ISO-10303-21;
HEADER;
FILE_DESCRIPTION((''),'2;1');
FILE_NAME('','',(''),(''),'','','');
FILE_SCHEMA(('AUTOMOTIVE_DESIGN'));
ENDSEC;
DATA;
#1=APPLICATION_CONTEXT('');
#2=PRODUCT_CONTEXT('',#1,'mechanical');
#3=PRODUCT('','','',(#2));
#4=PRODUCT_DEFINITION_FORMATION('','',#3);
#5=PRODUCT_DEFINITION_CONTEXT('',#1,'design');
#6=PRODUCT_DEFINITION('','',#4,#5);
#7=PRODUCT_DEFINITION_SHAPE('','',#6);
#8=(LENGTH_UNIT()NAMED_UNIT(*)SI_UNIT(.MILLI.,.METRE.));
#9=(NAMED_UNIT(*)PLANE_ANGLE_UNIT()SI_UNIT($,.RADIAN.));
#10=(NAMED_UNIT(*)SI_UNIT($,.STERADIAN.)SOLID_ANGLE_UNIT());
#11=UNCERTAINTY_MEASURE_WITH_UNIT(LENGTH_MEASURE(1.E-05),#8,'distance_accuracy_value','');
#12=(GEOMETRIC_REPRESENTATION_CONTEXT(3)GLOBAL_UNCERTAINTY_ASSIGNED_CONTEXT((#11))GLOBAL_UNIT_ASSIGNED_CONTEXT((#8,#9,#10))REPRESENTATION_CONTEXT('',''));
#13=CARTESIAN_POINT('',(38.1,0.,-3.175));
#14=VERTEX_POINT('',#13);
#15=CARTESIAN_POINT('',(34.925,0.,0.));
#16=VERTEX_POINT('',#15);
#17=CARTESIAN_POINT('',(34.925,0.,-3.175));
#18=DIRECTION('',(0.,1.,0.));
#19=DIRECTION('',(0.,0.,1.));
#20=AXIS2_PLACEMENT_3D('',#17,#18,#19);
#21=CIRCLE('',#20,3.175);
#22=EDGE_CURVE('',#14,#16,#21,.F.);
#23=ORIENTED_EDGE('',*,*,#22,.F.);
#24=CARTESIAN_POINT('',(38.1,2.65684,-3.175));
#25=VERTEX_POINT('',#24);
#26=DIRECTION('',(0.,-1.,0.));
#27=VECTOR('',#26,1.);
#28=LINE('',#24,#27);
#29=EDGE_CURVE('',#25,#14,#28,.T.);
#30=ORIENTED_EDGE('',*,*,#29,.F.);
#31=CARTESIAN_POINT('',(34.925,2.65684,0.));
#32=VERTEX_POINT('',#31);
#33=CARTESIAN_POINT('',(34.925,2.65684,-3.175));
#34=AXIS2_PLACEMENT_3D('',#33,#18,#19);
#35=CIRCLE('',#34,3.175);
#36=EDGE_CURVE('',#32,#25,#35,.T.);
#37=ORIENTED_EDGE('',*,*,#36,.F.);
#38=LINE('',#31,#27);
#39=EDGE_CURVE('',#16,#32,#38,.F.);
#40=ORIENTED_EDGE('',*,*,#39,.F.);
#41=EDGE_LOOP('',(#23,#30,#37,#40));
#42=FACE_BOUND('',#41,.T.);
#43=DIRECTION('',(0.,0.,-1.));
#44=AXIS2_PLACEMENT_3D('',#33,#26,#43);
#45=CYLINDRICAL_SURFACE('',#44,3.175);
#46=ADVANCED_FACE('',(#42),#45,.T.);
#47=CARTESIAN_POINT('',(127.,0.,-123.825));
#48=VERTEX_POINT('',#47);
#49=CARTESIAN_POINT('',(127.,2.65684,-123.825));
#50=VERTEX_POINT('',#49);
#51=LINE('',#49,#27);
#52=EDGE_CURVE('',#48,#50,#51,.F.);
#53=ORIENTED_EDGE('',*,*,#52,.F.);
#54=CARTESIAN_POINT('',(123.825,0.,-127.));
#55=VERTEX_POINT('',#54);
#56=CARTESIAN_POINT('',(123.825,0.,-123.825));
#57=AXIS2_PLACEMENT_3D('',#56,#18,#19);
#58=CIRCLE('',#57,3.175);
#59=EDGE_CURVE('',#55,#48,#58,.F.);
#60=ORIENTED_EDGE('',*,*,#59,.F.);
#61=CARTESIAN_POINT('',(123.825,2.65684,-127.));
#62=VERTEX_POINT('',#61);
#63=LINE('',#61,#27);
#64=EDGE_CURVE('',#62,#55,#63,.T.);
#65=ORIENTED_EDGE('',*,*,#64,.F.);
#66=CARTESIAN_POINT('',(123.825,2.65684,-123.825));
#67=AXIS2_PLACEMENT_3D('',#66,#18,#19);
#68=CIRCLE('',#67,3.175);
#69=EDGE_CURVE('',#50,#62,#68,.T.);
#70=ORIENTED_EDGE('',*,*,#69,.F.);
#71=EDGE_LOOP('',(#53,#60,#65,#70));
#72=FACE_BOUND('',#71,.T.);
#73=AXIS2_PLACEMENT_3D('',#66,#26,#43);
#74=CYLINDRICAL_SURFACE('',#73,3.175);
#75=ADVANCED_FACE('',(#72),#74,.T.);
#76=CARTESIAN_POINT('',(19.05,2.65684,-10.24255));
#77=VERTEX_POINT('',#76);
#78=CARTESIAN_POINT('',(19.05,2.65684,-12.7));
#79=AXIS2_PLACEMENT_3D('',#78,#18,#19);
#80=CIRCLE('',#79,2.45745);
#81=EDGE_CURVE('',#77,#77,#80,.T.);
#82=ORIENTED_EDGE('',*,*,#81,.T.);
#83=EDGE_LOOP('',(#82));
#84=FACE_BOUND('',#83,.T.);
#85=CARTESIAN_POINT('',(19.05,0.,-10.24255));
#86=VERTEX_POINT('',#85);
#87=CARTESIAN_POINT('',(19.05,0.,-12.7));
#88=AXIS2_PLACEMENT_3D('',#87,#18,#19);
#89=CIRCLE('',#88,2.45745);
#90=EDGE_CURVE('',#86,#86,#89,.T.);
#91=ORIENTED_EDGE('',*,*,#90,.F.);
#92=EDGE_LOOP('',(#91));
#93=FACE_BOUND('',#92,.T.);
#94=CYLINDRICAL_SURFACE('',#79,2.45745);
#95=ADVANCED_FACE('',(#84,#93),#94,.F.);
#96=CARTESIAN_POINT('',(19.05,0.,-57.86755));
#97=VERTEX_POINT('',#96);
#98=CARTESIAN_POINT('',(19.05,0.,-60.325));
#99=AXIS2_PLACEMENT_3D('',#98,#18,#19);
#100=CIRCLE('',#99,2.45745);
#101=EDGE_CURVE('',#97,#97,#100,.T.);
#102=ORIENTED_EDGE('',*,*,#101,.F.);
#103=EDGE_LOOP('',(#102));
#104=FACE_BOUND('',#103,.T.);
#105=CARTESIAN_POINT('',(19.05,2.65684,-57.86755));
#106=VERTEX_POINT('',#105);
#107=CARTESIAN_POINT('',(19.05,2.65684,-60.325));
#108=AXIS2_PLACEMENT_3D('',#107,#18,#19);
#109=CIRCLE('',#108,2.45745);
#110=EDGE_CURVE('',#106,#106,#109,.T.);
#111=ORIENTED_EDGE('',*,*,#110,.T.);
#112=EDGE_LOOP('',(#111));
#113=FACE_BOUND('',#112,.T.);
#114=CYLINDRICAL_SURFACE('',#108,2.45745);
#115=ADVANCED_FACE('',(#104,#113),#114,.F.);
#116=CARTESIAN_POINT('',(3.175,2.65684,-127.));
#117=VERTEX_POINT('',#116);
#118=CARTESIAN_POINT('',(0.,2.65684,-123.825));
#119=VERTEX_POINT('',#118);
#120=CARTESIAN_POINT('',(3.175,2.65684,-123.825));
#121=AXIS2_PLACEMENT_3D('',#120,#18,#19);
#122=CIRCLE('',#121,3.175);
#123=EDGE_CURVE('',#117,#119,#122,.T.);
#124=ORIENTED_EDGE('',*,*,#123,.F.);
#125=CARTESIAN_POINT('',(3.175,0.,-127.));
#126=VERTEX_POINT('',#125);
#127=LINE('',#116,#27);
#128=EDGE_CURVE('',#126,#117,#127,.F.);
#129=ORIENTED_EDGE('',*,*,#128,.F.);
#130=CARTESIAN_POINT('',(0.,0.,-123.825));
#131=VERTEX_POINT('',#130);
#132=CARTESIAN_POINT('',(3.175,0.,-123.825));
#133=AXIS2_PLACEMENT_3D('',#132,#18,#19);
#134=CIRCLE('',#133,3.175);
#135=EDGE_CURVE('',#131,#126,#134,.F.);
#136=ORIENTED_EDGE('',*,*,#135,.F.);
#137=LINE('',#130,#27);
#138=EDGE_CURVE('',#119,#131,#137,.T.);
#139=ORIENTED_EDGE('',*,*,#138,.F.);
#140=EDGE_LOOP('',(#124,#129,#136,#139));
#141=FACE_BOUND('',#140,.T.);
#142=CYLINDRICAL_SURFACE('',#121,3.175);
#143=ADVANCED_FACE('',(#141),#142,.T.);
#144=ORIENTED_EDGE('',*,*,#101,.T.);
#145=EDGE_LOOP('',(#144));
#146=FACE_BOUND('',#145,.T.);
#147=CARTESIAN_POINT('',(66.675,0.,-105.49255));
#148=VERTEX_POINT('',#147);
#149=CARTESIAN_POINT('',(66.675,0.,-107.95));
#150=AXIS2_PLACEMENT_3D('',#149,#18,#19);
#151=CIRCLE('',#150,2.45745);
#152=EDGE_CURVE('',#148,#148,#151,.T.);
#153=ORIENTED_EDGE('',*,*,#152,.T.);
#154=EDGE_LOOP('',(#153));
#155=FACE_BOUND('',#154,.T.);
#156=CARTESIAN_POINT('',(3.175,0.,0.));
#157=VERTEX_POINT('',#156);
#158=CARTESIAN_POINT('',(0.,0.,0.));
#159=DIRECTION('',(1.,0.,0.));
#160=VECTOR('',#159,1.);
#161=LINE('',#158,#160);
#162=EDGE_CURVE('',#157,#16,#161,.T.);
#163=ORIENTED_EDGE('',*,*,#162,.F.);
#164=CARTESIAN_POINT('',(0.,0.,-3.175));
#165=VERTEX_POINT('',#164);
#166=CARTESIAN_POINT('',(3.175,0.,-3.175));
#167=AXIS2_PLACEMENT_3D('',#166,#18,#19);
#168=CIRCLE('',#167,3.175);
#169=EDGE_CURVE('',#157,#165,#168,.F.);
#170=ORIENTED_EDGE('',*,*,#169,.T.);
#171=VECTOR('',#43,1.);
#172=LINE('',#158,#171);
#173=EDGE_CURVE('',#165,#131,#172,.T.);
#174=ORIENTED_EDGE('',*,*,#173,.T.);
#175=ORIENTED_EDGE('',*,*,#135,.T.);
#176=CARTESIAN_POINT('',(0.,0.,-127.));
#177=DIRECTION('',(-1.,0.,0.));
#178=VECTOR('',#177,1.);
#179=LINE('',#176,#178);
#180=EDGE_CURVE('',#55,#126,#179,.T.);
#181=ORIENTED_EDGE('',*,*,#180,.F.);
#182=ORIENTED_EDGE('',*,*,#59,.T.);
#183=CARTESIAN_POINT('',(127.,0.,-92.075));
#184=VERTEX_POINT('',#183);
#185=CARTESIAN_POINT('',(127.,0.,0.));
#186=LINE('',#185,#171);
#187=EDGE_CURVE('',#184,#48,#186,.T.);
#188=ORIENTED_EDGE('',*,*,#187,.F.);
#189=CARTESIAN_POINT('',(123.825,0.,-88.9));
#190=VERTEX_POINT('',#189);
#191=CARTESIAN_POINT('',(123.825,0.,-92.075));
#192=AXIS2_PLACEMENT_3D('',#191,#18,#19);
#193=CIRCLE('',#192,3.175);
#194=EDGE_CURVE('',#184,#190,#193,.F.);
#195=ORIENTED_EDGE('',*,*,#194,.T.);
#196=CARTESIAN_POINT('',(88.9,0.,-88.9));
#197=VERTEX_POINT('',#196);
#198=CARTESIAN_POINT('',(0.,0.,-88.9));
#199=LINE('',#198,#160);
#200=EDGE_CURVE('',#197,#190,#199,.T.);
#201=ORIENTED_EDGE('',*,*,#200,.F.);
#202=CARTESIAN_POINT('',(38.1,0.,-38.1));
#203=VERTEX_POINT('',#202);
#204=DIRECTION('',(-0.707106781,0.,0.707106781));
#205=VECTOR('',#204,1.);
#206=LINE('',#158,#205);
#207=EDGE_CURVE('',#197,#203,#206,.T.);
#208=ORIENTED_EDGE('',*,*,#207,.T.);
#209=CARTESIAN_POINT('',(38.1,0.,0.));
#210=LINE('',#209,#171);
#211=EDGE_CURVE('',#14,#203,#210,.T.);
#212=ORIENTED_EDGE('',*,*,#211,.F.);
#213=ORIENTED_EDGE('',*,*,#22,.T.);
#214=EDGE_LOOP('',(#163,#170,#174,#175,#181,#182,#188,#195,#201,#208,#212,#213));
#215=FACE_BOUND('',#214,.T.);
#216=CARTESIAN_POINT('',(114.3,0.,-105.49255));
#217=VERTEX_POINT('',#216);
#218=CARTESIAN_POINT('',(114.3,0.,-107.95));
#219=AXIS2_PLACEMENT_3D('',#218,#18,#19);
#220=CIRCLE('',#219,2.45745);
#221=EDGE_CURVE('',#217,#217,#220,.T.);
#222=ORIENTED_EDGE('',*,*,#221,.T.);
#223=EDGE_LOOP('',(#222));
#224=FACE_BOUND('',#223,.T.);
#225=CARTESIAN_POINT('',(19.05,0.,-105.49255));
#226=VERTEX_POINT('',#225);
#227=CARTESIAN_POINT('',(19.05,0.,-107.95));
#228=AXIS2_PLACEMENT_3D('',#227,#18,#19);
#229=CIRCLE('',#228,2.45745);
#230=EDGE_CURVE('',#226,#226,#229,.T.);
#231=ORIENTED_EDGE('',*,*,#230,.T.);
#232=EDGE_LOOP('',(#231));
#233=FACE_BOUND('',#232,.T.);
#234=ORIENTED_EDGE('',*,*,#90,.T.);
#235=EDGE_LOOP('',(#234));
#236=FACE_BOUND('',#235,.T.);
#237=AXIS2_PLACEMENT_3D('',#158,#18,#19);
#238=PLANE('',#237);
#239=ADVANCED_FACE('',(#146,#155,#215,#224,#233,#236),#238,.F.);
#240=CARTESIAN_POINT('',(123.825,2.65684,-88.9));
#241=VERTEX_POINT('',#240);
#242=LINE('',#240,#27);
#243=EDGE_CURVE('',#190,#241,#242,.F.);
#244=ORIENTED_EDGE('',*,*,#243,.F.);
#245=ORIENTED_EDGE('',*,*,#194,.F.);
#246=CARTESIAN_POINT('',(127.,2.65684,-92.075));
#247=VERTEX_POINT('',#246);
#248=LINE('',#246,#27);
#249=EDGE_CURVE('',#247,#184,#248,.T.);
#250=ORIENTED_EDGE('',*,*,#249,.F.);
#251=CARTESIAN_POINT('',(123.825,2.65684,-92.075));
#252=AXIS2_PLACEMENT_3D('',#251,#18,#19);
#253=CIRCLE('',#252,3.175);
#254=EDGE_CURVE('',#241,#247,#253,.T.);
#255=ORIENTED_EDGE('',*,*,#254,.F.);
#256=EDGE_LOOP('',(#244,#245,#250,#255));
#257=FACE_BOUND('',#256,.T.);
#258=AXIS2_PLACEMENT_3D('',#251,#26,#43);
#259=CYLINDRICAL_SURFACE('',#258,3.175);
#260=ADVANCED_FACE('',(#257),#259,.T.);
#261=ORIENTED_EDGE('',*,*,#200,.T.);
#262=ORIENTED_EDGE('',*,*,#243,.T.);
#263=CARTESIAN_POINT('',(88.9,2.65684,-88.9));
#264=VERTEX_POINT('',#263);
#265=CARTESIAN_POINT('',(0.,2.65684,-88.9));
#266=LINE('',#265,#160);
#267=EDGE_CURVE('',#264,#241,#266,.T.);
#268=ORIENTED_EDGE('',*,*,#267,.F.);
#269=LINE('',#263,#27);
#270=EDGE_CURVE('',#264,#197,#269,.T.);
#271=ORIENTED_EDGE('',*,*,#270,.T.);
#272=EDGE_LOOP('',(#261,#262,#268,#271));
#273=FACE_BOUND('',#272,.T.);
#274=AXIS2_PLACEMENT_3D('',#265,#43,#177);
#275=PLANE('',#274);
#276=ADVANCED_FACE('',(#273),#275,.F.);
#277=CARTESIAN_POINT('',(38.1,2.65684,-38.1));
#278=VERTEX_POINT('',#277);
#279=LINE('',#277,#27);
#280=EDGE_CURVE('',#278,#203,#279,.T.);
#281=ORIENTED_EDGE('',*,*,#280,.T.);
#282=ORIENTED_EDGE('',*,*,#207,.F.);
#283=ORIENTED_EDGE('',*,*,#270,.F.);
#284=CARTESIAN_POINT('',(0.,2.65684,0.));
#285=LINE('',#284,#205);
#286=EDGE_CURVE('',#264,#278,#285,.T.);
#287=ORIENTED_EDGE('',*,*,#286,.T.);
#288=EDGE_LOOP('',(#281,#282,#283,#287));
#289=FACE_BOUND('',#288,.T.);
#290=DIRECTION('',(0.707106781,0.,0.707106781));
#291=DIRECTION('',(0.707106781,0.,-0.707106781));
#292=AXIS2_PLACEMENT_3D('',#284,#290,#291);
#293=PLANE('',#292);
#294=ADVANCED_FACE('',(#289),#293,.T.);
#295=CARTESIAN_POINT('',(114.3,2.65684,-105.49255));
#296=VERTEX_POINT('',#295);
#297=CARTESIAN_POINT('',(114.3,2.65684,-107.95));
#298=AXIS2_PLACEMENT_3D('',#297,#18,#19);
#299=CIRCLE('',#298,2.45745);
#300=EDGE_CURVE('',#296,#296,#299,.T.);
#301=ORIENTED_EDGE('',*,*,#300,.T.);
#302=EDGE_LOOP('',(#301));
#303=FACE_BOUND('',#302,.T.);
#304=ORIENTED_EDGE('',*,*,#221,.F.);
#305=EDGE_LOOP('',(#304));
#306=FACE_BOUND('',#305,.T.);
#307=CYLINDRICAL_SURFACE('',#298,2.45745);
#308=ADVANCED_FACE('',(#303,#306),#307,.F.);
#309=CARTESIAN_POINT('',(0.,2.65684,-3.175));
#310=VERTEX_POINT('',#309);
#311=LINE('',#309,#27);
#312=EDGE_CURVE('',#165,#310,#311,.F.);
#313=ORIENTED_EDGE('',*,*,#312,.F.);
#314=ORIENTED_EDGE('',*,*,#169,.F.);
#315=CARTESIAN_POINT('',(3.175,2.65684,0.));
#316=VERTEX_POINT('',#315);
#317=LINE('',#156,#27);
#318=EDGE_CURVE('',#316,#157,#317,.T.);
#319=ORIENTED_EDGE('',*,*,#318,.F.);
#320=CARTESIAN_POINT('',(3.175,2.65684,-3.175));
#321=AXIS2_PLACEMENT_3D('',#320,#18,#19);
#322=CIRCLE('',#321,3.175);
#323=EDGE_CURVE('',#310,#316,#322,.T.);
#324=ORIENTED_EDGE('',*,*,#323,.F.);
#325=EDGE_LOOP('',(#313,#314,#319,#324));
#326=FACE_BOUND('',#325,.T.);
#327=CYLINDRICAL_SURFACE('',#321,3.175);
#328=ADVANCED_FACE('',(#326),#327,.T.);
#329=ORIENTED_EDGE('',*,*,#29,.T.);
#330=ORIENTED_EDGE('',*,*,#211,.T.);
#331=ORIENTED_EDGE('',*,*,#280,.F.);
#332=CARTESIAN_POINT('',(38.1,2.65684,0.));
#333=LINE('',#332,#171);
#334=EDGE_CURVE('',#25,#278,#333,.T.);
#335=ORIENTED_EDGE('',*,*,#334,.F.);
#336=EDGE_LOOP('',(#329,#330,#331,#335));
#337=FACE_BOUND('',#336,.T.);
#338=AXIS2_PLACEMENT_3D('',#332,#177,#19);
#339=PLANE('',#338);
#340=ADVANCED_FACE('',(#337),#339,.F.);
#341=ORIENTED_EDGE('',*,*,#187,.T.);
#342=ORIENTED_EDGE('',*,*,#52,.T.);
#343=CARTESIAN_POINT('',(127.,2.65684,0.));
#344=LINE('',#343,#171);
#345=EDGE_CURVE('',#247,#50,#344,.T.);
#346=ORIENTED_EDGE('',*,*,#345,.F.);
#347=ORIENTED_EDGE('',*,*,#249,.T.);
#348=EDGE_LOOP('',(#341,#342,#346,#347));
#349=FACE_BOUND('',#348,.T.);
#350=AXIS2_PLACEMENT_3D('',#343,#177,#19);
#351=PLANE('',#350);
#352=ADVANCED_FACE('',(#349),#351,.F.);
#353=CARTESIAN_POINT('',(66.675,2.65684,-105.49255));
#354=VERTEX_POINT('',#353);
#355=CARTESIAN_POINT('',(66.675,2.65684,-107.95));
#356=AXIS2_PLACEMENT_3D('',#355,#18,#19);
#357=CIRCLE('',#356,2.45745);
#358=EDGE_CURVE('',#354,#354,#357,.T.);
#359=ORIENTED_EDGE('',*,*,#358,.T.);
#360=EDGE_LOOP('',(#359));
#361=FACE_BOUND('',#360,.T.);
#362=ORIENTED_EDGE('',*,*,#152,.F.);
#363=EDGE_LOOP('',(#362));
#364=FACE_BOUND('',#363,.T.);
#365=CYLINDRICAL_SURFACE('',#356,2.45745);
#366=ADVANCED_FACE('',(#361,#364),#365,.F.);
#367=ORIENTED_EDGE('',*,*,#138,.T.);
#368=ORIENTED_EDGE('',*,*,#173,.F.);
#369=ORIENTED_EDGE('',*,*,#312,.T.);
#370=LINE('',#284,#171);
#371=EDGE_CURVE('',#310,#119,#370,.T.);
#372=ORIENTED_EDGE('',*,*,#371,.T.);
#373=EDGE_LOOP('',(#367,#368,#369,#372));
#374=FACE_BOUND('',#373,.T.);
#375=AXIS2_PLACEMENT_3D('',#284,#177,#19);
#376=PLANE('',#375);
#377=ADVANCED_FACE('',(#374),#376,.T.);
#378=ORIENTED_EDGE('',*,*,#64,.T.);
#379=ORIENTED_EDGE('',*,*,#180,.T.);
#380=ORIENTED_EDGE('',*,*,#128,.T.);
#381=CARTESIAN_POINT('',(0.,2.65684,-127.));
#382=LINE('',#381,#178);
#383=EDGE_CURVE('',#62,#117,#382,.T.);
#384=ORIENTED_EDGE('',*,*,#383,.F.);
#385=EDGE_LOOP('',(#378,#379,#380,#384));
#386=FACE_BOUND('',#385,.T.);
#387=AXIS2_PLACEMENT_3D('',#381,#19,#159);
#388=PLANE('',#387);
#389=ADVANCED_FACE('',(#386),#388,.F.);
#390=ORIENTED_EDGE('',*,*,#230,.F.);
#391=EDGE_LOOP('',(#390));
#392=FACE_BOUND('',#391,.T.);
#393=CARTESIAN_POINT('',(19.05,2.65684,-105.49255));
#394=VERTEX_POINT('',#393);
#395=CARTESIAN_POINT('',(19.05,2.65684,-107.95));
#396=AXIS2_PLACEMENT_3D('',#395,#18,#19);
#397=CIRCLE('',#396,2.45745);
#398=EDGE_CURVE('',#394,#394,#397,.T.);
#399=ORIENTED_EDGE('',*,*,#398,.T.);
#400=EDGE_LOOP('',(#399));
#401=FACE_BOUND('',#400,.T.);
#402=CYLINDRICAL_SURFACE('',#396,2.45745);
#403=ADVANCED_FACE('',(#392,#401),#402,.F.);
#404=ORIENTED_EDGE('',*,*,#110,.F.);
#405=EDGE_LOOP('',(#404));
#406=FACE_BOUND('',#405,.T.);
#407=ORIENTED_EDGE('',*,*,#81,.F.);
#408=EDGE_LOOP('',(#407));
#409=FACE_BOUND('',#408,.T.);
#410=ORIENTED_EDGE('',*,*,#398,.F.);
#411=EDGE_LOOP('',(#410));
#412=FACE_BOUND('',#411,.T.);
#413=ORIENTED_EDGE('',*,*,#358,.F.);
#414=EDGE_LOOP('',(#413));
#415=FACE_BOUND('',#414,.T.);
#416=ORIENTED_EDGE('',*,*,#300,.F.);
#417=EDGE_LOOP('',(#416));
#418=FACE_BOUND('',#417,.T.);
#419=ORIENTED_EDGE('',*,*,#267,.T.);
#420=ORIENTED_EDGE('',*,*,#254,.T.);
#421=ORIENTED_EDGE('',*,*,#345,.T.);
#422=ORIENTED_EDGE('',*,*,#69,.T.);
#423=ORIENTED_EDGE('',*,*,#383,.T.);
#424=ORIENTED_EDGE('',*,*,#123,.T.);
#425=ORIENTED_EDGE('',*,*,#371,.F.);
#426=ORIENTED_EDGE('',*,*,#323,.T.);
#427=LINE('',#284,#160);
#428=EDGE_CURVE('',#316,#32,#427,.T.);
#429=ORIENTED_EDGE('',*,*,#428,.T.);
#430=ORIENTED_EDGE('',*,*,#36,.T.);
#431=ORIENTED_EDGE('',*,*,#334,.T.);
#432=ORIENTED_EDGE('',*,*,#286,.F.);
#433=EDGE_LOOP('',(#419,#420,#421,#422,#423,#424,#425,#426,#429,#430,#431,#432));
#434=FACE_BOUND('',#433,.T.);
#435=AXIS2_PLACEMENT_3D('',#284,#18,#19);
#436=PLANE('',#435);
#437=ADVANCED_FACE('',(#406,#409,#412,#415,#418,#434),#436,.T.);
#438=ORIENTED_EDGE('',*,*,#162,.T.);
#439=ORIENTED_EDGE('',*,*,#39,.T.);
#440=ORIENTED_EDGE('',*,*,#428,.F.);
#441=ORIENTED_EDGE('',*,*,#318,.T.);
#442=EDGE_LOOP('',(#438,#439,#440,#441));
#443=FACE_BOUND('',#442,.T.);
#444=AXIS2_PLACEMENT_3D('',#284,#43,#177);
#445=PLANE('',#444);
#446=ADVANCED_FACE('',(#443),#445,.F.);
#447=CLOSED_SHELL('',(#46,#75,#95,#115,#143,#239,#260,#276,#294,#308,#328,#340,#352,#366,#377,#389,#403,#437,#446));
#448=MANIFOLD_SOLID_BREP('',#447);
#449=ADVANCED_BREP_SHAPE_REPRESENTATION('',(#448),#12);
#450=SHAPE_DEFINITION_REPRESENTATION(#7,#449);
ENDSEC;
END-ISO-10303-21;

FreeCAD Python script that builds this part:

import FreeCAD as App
import Part
import Sketcher
from FreeCAD import Vector
Q = App.Units.Quantity


def edges_at(feature, points):
    """Names of the edges that pass closest to the given points."""
    edges = feature.Shape.Edges
    near = lambda p: min(range(len(edges)), key=lambda i: edges[i].distToShape(Part.Vertex(*p))[0])
    return sorted({f"Edge{near(p) + 1}" for p in points})


def add_polygon(sketch, points):
    """Adds a closed chain of lines whose ends are joined by coincident constraints."""
    first, n = sketch.GeometryCount, len(points)
    for a, b in zip(points, points[1:] + points[:1]):
        sketch.addGeometry(Part.LineSegment(App.Vector(*a, 0), App.Vector(*b, 0)), False)
    for i in range(n):
        sketch.addConstraint(Sketcher.Constraint("Coincident", first + i, 2, first + (i + 1) % n, 1))

doc = App.newDocument("Part")
params = doc.addObject("Spreadsheet::Sheet", "Params")
for row, (alias, value) in enumerate([
    ("sketch1_width", "5 in"),
    ("sketch1_width2", "1.5 in"),
    ("pad1_length", "0.1046 in"),
    ("hole_diameter", "0.1935 in"),
    ("fillet_radius", "0.125 in"),
], start=1):
    params.set(f"A{row}", alias)
    params.set(f"B{row}", "=" + value)
    params.setAlias(f"B{row}", alias)

body = doc.addObject("PartDesign::Body", "Body")

sketch1 = body.newObject("Sketcher::SketchObject", "Sketch")
sketch1.AttachmentSupport = (doc.getObject("XZ_Plane"), [""])
sketch1.MapMode = "FlatFace"
add_polygon(sketch1, [(127, -89), (127, -127), (0, -127), (0, 0), (38, 0), (38, -38), (89, -89)])
sketch1.addConstraint(Sketcher.Constraint("Vertical", 0))
sketch1.addConstraint(Sketcher.Constraint("Horizontal", 1))
sketch1.addConstraint(Sketcher.Constraint("Vertical", 2))
sketch1.addConstraint(Sketcher.Constraint("Horizontal", 3))
sketch1.addConstraint(Sketcher.Constraint("Vertical", 4))
sketch1.addConstraint(Sketcher.Constraint("Horizontal", 6))
sketch1.addConstraint(Sketcher.Constraint("Coincident", 2, 2, -1, 1))
sketch1.addConstraint(Sketcher.Constraint("Equal", 3, 6))
sketch1.addConstraint(Sketcher.Constraint("Equal", 6, 0))
sketch1.addConstraint(Sketcher.Constraint("Equal", 1, 2))
sketch1.addConstraint(Sketcher.Constraint("Equal", 0, 4))
sketch1.addConstraint(Sketcher.Constraint("DistanceX", 1, 2, 1, 1, Q("5 in")))
sketch1.addConstraint(Sketcher.Constraint("DistanceX", 3, 1, 3, 2, Q("1.5 in")))
sketch1.setExpression("Constraints[18]", "Params.sketch1_width")
sketch1.setExpression("Constraints[19]", "Params.sketch1_width2")
pad1 = body.newObject("PartDesign::Pad", "Pad")
pad1.Profile = sketch1
pad1.setExpression("Length", "Params.pad1_length")
pad1.Reversed = True

sketch2 = body.newObject("Sketcher::SketchObject", "Sketch001")
sketch2.AttachmentSupport = (doc.getObject("XZ_Plane"), [""])
sketch2.MapMode = "FlatFace"
sketch2.AttachmentOffset = App.Placement(Vector(0, 0, -0.1046 * 25.4), App.Rotation())
sketch2.addGeometry(Part.Circle(Vector(114.3, -108, 0), Vector(0, 0, 1), 2.5), False)
sketch2.addGeometry(Part.Circle(Vector(66.7, -108, 0), Vector(0, 0, 1), 2.5), False)
sketch2.addGeometry(Part.Circle(Vector(19.1, -108, 0), Vector(0, 0, 1), 2.5), False)
sketch2.addGeometry(Part.Circle(Vector(19.1, -60.3, 0), Vector(0, 0, 1), 2.5), False)
sketch2.addGeometry(Part.Circle(Vector(19.1, -12.7, 0), Vector(0, 0, 1), 2.5), False)
sketch2.addConstraint(Sketcher.Constraint("Equal", 0, 1))
sketch2.addConstraint(Sketcher.Constraint("Equal", 1, 2))
sketch2.addConstraint(Sketcher.Constraint("Equal", 2, 3))
sketch2.addConstraint(Sketcher.Constraint("Equal", 3, 4))
sketch2.addConstraint(Sketcher.Constraint("Horizontal", 0, 3, 1, 3))
sketch2.addConstraint(Sketcher.Constraint("Horizontal", 1, 3, 2, 3))
sketch2.addConstraint(Sketcher.Constraint("Vertical", 2, 3, 3, 3))
sketch2.addConstraint(Sketcher.Constraint("Vertical", 3, 3, 4, 3))
sketch2.addConstraint(Sketcher.Constraint("Diameter", 0, Q("0.1935 in")))
sketch2.addConstraint(Sketcher.Constraint("DistanceX", -1, 1, 0, 3, Q("4.5 in")))
sketch2.addConstraint(Sketcher.Constraint("DistanceY", 4, 3, -1, 1, Q("0.5 in")))
sketch2.addConstraint(Sketcher.Constraint("DistanceY", 0, 3, -1, 1, Q("4.25 in")))
sketch2.addConstraint(Sketcher.Constraint("DistanceX", -1, 1, 2, 3, Q("0.75 in")))
sketch2.addConstraint(Sketcher.Constraint("DistanceX", -1, 1, 1, 3, Q("2.625 in")))
sketch2.addConstraint(Sketcher.Constraint("DistanceY", 3, 3, -1, 1, Q("2.375 in")))
doc.recompute()
hole = body.newObject("PartDesign::Hole", "Hole")
hole.Profile = sketch2
hole.ThreadType = "None"
hole.setExpression("Diameter", "Params.hole_diameter")
hole.DepthType = "ThroughAll"
hole.Reversed = True
doc.recompute()

fillet = body.newObject("PartDesign::Fillet", "Fillet")
fillet.Base = (hole, edges_at(hole, [
    (127, 1.328, -88.9),
    (38.1, 1.328, 0),
    (0, 1.328, 0),
    (0, 1.328, -127),
    (127, 1.328, -127),
]))
fillet.setExpression("Radius", "Params.fillet_radius")

doc.recompute()
